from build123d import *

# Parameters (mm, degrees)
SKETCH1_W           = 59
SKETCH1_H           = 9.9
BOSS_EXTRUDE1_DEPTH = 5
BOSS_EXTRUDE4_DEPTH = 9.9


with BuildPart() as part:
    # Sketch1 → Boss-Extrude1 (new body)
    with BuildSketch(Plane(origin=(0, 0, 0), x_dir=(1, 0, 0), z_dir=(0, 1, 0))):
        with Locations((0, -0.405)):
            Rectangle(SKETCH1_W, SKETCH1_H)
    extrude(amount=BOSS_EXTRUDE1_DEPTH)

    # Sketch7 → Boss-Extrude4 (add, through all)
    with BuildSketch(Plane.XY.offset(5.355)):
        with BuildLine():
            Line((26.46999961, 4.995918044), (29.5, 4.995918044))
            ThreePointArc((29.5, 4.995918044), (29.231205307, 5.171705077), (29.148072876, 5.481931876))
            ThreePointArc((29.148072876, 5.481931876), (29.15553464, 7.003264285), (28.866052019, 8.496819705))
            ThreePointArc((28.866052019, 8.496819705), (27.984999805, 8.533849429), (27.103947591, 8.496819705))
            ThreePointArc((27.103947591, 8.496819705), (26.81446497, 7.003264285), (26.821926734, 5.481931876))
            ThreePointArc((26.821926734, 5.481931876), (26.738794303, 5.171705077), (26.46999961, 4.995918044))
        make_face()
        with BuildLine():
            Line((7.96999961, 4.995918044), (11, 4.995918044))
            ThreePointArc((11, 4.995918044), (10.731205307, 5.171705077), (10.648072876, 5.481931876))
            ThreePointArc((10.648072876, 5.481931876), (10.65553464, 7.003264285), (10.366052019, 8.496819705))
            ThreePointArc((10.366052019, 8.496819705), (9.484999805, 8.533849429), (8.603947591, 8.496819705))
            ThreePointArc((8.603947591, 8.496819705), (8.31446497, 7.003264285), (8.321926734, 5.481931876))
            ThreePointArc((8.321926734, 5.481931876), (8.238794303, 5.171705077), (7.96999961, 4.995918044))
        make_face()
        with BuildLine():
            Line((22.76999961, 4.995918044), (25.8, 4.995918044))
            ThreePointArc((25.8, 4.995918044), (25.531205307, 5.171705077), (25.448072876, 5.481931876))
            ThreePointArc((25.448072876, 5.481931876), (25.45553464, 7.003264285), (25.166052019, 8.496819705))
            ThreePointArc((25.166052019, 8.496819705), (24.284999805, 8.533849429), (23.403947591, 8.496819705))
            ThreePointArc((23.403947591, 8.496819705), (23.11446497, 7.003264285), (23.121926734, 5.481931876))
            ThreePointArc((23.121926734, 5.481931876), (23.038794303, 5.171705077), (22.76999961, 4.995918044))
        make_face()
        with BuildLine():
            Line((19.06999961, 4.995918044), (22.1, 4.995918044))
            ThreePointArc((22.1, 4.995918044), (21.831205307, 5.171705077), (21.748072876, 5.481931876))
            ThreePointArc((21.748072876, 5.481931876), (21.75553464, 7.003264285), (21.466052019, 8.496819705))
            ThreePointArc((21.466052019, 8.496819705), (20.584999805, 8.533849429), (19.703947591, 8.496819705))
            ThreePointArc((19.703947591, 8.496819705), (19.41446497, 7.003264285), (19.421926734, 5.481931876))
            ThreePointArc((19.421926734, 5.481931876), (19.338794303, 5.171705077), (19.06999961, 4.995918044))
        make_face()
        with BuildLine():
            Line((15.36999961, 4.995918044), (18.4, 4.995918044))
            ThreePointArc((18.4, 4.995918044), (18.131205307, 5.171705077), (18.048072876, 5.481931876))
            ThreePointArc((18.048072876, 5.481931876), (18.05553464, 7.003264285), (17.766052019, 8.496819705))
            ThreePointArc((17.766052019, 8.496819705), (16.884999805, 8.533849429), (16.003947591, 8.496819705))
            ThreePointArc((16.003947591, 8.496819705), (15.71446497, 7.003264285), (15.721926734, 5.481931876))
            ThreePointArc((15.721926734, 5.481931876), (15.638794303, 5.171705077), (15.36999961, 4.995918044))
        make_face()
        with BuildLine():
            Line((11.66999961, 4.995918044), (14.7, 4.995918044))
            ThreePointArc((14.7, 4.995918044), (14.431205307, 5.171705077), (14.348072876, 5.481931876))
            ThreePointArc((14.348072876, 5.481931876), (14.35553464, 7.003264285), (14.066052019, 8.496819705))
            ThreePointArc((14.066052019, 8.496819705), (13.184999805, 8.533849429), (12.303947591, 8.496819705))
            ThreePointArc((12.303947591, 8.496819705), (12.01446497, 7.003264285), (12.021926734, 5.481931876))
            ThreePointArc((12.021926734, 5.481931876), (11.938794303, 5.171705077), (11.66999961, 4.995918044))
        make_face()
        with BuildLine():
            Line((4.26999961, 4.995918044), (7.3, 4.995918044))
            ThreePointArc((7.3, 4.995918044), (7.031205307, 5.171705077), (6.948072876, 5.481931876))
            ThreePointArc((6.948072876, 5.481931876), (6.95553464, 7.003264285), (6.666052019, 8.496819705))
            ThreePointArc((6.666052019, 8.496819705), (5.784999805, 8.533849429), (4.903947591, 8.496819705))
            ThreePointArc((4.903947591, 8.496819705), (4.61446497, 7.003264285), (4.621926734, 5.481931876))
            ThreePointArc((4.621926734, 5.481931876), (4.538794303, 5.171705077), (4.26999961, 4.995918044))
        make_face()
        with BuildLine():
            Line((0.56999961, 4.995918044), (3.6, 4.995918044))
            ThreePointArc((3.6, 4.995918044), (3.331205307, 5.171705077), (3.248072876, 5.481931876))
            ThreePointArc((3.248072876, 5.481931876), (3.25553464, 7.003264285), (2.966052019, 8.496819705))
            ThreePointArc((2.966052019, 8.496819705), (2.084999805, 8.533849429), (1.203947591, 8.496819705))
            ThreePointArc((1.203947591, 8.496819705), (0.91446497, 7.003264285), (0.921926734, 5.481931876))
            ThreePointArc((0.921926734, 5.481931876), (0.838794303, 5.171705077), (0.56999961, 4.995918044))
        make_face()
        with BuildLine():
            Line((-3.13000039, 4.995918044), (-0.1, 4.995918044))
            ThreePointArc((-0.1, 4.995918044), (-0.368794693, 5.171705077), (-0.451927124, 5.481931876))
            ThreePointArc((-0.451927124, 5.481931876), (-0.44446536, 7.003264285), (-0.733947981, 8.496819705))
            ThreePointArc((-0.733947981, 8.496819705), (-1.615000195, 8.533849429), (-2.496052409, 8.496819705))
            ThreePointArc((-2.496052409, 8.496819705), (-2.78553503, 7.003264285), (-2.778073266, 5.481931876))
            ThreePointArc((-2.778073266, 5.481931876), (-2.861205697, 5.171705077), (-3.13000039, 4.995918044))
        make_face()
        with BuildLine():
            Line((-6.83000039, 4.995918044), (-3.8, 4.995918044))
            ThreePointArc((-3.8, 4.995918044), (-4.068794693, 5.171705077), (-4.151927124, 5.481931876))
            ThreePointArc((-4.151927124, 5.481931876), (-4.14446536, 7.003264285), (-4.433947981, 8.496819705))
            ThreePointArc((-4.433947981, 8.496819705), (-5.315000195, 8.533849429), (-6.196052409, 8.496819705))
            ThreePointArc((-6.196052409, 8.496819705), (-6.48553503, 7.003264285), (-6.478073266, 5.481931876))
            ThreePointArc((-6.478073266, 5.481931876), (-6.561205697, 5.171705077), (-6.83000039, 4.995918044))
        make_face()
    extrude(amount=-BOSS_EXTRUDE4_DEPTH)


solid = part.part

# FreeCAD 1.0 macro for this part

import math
import FreeCAD as App
import Part
import Sketcher
from FreeCAD import Vector
Q = App.Units.Quantity


def add_polygon(sketch, points):
    """Adds a closed chain of lines whose ends are joined by coincident constraints."""
    first, n = sketch.GeometryCount, len(points)
    for a, b in zip(points, points[1:] + points[:1]):
        sketch.addGeometry(Part.LineSegment(App.Vector(*a, 0), App.Vector(*b, 0)), False)
    for i in range(n):
        sketch.addConstraint(Sketcher.Constraint("Coincident", first + i, 2, first + (i + 1) % n, 1))

doc = App.newDocument("Part")
body = doc.addObject("PartDesign::Body", "Body")

sketch1 = doc.addObject("Sketcher::SketchObject", "Sketch")
body.addObject(sketch1)
sketch1.AttachmentSupport = (doc.XZ_Plane, [""])
sketch1.MapMode = "FlatFace"
add_polygon(sketch1, [(-29.5, -4.545), (-29.5, 5.355), (29.5, 5.355), (29.5, -4.545)])
sketch1.addConstraint(Sketcher.Constraint("Vertical", 0))
sketch1.addConstraint(Sketcher.Constraint("Horizontal", 1))
sketch1.addConstraint(Sketcher.Constraint("Vertical", 2))
sketch1.addConstraint(Sketcher.Constraint("Horizontal", 3))
sketch1.addConstraint(Sketcher.Constraint("DistanceX", 1, 1, 1, 2, Q("59 mm")))
sketch1.addConstraint(Sketcher.Constraint("DistanceY", 0, 1, 0, 2, Q("9.9 mm")))
sketch1.addConstraint(Sketcher.Constraint("DistanceX", 0, 2, -1, 1, Q("29.5 mm")))
sketch1.addConstraint(Sketcher.Constraint("DistanceY", -1, 1, 0, 2, Q("5.355 mm")))
pad1 = doc.addObject("PartDesign::Pad", "Pad")
body.addObject(pad1)
pad1.Profile = sketch1
pad1.Length = 5
pad1.Reversed = True

sketch2 = doc.addObject("Sketcher::SketchObject", "Sketch001")
body.addObject(sketch2)
sketch2.AttachmentSupport = (doc.XY_Plane, [""])
sketch2.MapMode = "FlatFace"
sketch2.AttachmentOffset = App.Placement(Vector(0, 0, 5.355), App.Rotation())
sketch2.addGeometry(Part.LineSegment(Vector(26.47, 4.995918, 0), Vector(29.5, 4.995918, 0)), False)
sketch2.addGeometry(Part.ArcOfCircle(Part.Circle(Vector(29.595684, 5.435628, 0), Vector(0, 0, 1), 0.45), math.radians(174.093908), math.radians(257.723384)), False)
sketch2.addGeometry(Part.ArcOfCircle(Part.Circle(Vector(21.42873, 6.280478, 0), Vector(0, 0, 1), 7.760536), math.radians(-5.906092), math.radians(16.594198)), False)
sketch2.addGeometry(Part.ArcOfCircle(Part.Circle(Vector(27.985, -1.966151, 0), Vector(0, 0, 1), 10.5), math.radians(85.186667), math.radians(94.813333)), False)
sketch2.addGeometry(Part.ArcOfCircle(Part.Circle(Vector(34.541269, 6.280478, 0), Vector(0, 0, 1), 7.760536), math.radians(163.405802), math.radians(185.906092)), False)
sketch2.addGeometry(Part.ArcOfCircle(Part.Circle(Vector(26.374315, 5.435628, 0), Vector(0, 0, 1), 0.45), math.radians(-77.723384), math.radians(5.906092)), False)
sketch2.addGeometry(Part.LineSegment(Vector(7.97, 4.995918, 0), Vector(11, 4.995918, 0)), False)
sketch2.addGeometry(Part.ArcOfCircle(Part.Circle(Vector(11.095684, 5.435628, 0), Vector(0, 0, 1), 0.45), math.radians(174.093908), math.radians(257.723384)), False)
sketch2.addGeometry(Part.ArcOfCircle(Part.Circle(Vector(2.92873, 6.280478, 0), Vector(0, 0, 1), 7.760536), math.radians(-5.906092), math.radians(16.594198)), False)
sketch2.addGeometry(Part.ArcOfCircle(Part.Circle(Vector(9.485, -1.966151, 0), Vector(0, 0, 1), 10.5), math.radians(85.186667), math.radians(94.813333)), False)
sketch2.addGeometry(Part.ArcOfCircle(Part.Circle(Vector(16.041269, 6.280478, 0), Vector(0, 0, 1), 7.760536), math.radians(163.405802), math.radians(185.906092)), False)
sketch2.addGeometry(Part.ArcOfCircle(Part.Circle(Vector(7.874315, 5.435628, 0), Vector(0, 0, 1), 0.45), math.radians(-77.723384), math.radians(5.906092)), False)
sketch2.addGeometry(Part.LineSegment(Vector(22.77, 4.995918, 0), Vector(25.8, 4.995918, 0)), False)
sketch2.addGeometry(Part.ArcOfCircle(Part.Circle(Vector(25.895684, 5.435628, 0), Vector(0, 0, 1), 0.45), math.radians(174.093908), math.radians(257.723384)), False)
sketch2.addGeometry(Part.ArcOfCircle(Part.Circle(Vector(17.72873, 6.280478, 0), Vector(0, 0, 1), 7.760536), math.radians(-5.906092), math.radians(16.594198)), False)
sketch2.addGeometry(Part.ArcOfCircle(Part.Circle(Vector(24.285, -1.966151, 0), Vector(0, 0, 1), 10.5), math.radians(85.186667), math.radians(94.813333)), False)
sketch2.addGeometry(Part.ArcOfCircle(Part.Circle(Vector(30.841269, 6.280478, 0), Vector(0, 0, 1), 7.760536), math.radians(163.405802), math.radians(185.906092)), False)
sketch2.addGeometry(Part.ArcOfCircle(Part.Circle(Vector(22.674315, 5.435628, 0), Vector(0, 0, 1), 0.45), math.radians(-77.723384), math.radians(5.906092)), False)
sketch2.addGeometry(Part.LineSegment(Vector(19.07, 4.995918, 0), Vector(22.1, 4.995918, 0)), False)
sketch2.addGeometry(Part.ArcOfCircle(Part.Circle(Vector(22.195684, 5.435628, 0), Vector(0, 0, 1), 0.45), math.radians(174.093908), math.radians(257.723384)), False)
sketch2.addGeometry(Part.ArcOfCircle(Part.Circle(Vector(14.02873, 6.280478, 0), Vector(0, 0, 1), 7.760536), math.radians(-5.906092), math.radians(16.594198)), False)
sketch2.addGeometry(Part.ArcOfCircle(Part.Circle(Vector(20.585, -1.966151, 0), Vector(0, 0, 1), 10.5), math.radians(85.186667), math.radians(94.813333)), False)
sketch2.addGeometry(Part.ArcOfCircle(Part.Circle(Vector(27.141269, 6.280478, 0), Vector(0, 0, 1), 7.760536), math.radians(163.405802), math.radians(185.906092)), False)
sketch2.addGeometry(Part.ArcOfCircle(Part.Circle(Vector(18.974315, 5.435628, 0), Vector(0, 0, 1), 0.45), math.radians(-77.723384), math.radians(5.906092)), False)
sketch2.addGeometry(Part.LineSegment(Vector(15.37, 4.995918, 0), Vector(18.4, 4.995918, 0)), False)
sketch2.addGeometry(Part.ArcOfCircle(Part.Circle(Vector(18.495684, 5.435628, 0), Vector(0, 0, 1), 0.45), math.radians(174.093908), math.radians(257.723384)), False)
sketch2.addGeometry(Part.ArcOfCircle(Part.Circle(Vector(10.32873, 6.280478, 0), Vector(0, 0, 1), 7.760536), math.radians(-5.906092), math.radians(16.594198)), False)
sketch2.addGeometry(Part.ArcOfCircle(Part.Circle(Vector(16.885, -1.966151, 0), Vector(0, 0, 1), 10.5), math.radians(85.186667), math.radians(94.813333)), False)
sketch2.addGeometry(Part.ArcOfCircle(Part.Circle(Vector(23.441269, 6.280478, 0), Vector(0, 0, 1), 7.760536), math.radians(163.405802), math.radians(185.906092)), False)
sketch2.addGeometry(Part.ArcOfCircle(Part.Circle(Vector(15.274315, 5.435628, 0), Vector(0, 0, 1), 0.45), math.radians(-77.723384), math.radians(5.906092)), False)
sketch2.addGeometry(Part.LineSegment(Vector(11.67, 4.995918, 0), Vector(14.7, 4.995918, 0)), False)
sketch2.addGeometry(Part.ArcOfCircle(Part.Circle(Vector(14.795684, 5.435628, 0), Vector(0, 0, 1), 0.45), math.radians(174.093908), math.radians(257.723384)), False)
sketch2.addGeometry(Part.ArcOfCircle(Part.Circle(Vector(6.62873, 6.280478, 0), Vector(0, 0, 1), 7.760536), math.radians(-5.906092), math.radians(16.594198)), False)
sketch2.addGeometry(Part.ArcOfCircle(Part.Circle(Vector(13.185, -1.966151, 0), Vector(0, 0, 1), 10.5), math.radians(85.186667), math.radians(94.813333)), False)
sketch2.addGeometry(Part.ArcOfCircle(Part.Circle(Vector(19.741269, 6.280478, 0), Vector(0, 0, 1), 7.760536), math.radians(163.405802), math.radians(185.906092)), False)
sketch2.addGeometry(Part.ArcOfCircle(Part.Circle(Vector(11.574315, 5.435628, 0), Vector(0, 0, 1), 0.45), math.radians(-77.723384), math.radians(5.906092)), False)
sketch2.addGeometry(Part.LineSegment(Vector(4.27, 4.995918, 0), Vector(7.3, 4.995918, 0)), False)
sketch2.addGeometry(Part.ArcOfCircle(Part.Circle(Vector(7.395684, 5.435628, 0), Vector(0, 0, 1), 0.45), math.radians(174.093908), math.radians(257.723384)), False)
sketch2.addGeometry(Part.ArcOfCircle(Part.Circle(Vector(-0.77127, 6.280478, 0), Vector(0, 0, 1), 7.760536), math.radians(-5.906092), math.radians(16.594198)), False)
sketch2.addGeometry(Part.ArcOfCircle(Part.Circle(Vector(5.785, -1.966151, 0), Vector(0, 0, 1), 10.5), math.radians(85.186667), math.radians(94.813333)), False)
sketch2.addGeometry(Part.ArcOfCircle(Part.Circle(Vector(12.341269, 6.280478, 0), Vector(0, 0, 1), 7.760536), math.radians(163.405802), math.radians(185.906092)), False)
sketch2.addGeometry(Part.ArcOfCircle(Part.Circle(Vector(4.174315, 5.435628, 0), Vector(0, 0, 1), 0.45), math.radians(-77.723384), math.radians(5.906092)), False)
sketch2.addGeometry(Part.LineSegment(Vector(0.57, 4.995918, 0), Vector(3.6, 4.995918, 0)), False)
sketch2.addGeometry(Part.ArcOfCircle(Part.Circle(Vector(3.695684, 5.435628, 0), Vector(0, 0, 1), 0.45), math.radians(174.093908), math.radians(257.723384)), False)
sketch2.addGeometry(Part.ArcOfCircle(Part.Circle(Vector(-4.47127, 6.280478, 0), Vector(0, 0, 1), 7.760536), math.radians(-5.906092), math.radians(16.594198)), False)
sketch2.addGeometry(Part.ArcOfCircle(Part.Circle(Vector(2.085, -1.966151, 0), Vector(0, 0, 1), 10.5), math.radians(85.186667), math.radians(94.813333)), False)
sketch2.addGeometry(Part.ArcOfCircle(Part.Circle(Vector(8.641269, 6.280478, 0), Vector(0, 0, 1), 7.760536), math.radians(163.405802), math.radians(185.906092)), False)
sketch2.addGeometry(Part.ArcOfCircle(Part.Circle(Vector(0.474315, 5.435628, 0), Vector(0, 0, 1), 0.45), math.radians(-77.723384), math.radians(5.906092)), False)
sketch2.addGeometry(Part.LineSegment(Vector(-3.13, 4.995918, 0), Vector(-0.1, 4.995918, 0)), False)
sketch2.addGeometry(Part.ArcOfCircle(Part.Circle(Vector(-0.004316, 5.435628, 0), Vector(0, 0, 1), 0.45), math.radians(174.093908), math.radians(257.723384)), False)
sketch2.addGeometry(Part.ArcOfCircle(Part.Circle(Vector(-8.17127, 6.280478, 0), Vector(0, 0, 1), 7.760536), math.radians(-5.906092), math.radians(16.594198)), False)
sketch2.addGeometry(Part.ArcOfCircle(Part.Circle(Vector(-1.615, -1.966151, 0), Vector(0, 0, 1), 10.5), math.radians(85.186667), math.radians(94.813333)), False)
sketch2.addGeometry(Part.ArcOfCircle(Part.Circle(Vector(4.941269, 6.280478, 0), Vector(0, 0, 1), 7.760536), math.radians(163.405802), math.radians(185.906092)), False)
sketch2.addGeometry(Part.ArcOfCircle(Part.Circle(Vector(-3.225685, 5.435628, 0), Vector(0, 0, 1), 0.45), math.radians(-77.723384), math.radians(5.906092)), False)
sketch2.addGeometry(Part.LineSegment(Vector(-6.83, 4.995918, 0), Vector(-3.8, 4.995918, 0)), False)
sketch2.addGeometry(Part.ArcOfCircle(Part.Circle(Vector(-3.704316, 5.435628, 0), Vector(0, 0, 1), 0.45), math.radians(174.093908), math.radians(257.723384)), False)
sketch2.addGeometry(Part.ArcOfCircle(Part.Circle(Vector(-11.87127, 6.280478, 0), Vector(0, 0, 1), 7.760536), math.radians(-5.906092), math.radians(16.594198)), False)
sketch2.addGeometry(Part.ArcOfCircle(Part.Circle(Vector(-5.315, -1.966151, 0), Vector(0, 0, 1), 10.5), math.radians(85.186667), math.radians(94.813333)), False)
sketch2.addGeometry(Part.ArcOfCircle(Part.Circle(Vector(1.241269, 6.280478, 0), Vector(0, 0, 1), 7.760536), math.radians(163.405802), math.radians(185.906092)), False)
sketch2.addGeometry(Part.ArcOfCircle(Part.Circle(Vector(-6.925685, 5.435628, 0), Vector(0, 0, 1), 0.45), math.radians(-77.723384), math.radians(5.906092)), False)
sketch2.addConstraint(Sketcher.Constraint("Coincident", 0, 2, 1, 2))
sketch2.addConstraint(Sketcher.Constraint("Tangent", 1, 1, 2, 1))
sketch2.addConstraint(Sketcher.Constraint("Coincident", 2, 2, 3, 1))
sketch2.addConstraint(Sketcher.Constraint("Coincident", 3, 2, 4, 1))
sketch2.addConstraint(Sketcher.Constraint("Tangent", 4, 2, 5, 2))
sketch2.addConstraint(Sketcher.Constraint("Coincident", 5, 1, 0, 1))
sketch2.addConstraint(Sketcher.Constraint("Coincident", 6, 2, 7, 2))
sketch2.addConstraint(Sketcher.Constraint("Tangent", 7, 1, 8, 1))
sketch2.addConstraint(Sketcher.Constraint("Coincident", 8, 2, 9, 1))
sketch2.addConstraint(Sketcher.Constraint("Coincident", 9, 2, 10, 1))
sketch2.addConstraint(Sketcher.Constraint("Tangent", 10, 2, 11, 2))
sketch2.addConstraint(Sketcher.Constraint("Coincident", 11, 1, 6, 1))
sketch2.addConstraint(Sketcher.Constraint("Coincident", 12, 2, 13, 2))
sketch2.addConstraint(Sketcher.Constraint("Tangent", 13, 1, 14, 1))
sketch2.addConstraint(Sketcher.Constraint("Coincident", 14, 2, 15, 1))
sketch2.addConstraint(Sketcher.Constraint("Coincident", 15, 2, 16, 1))
sketch2.addConstraint(Sketcher.Constraint("Tangent", 16, 2, 17, 2))
sketch2.addConstraint(Sketcher.Constraint("Coincident", 17, 1, 12, 1))
sketch2.addConstraint(Sketcher.Constraint("Coincident", 18, 2, 19, 2))
sketch2.addConstraint(Sketcher.Constraint("Tangent", 19, 1, 20, 1))
sketch2.addConstraint(Sketcher.Constraint("Coincident", 20, 2, 21, 1))
sketch2.addConstraint(Sketcher.Constraint("Coincident", 21, 2, 22, 1))
sketch2.addConstraint(Sketcher.Constraint("Tangent", 22, 2, 23, 2))
sketch2.addConstraint(Sketcher.Constraint("Coincident", 23, 1, 18, 1))
sketch2.addConstraint(Sketcher.Constraint("Coincident", 24, 2, 25, 2))
sketch2.addConstraint(Sketcher.Constraint("Tangent", 25, 1, 26, 1))
sketch2.addConstraint(Sketcher.Constraint("Coincident", 26, 2, 27, 1))
sketch2.addConstraint(Sketcher.Constraint("Coincident", 27, 2, 28, 1))
sketch2.addConstraint(Sketcher.Constraint("Tangent", 28, 2, 29, 2))
sketch2.addConstraint(Sketcher.Constraint("Coincident", 29, 1, 24, 1))
sketch2.addConstraint(Sketcher.Constraint("Coincident", 30, 2, 31, 2))
sketch2.addConstraint(Sketcher.Constraint("Tangent", 31, 1, 32, 1))
sketch2.addConstraint(Sketcher.Constraint("Coincident", 32, 2, 33, 1))
sketch2.addConstraint(Sketcher.Constraint("Coincident", 33, 2, 34, 1))
sketch2.addConstraint(Sketcher.Constraint("Tangent", 34, 2, 35, 2))
sketch2.addConstraint(Sketcher.Constraint("Coincident", 35, 1, 30, 1))
sketch2.addConstraint(Sketcher.Constraint("Coincident", 36, 2, 37, 2))
sketch2.addConstraint(Sketcher.Constraint("Tangent", 37, 1, 38, 1))
sketch2.addConstraint(Sketcher.Constraint("Coincident", 38, 2, 39, 1))
sketch2.addConstraint(Sketcher.Constraint("Coincident", 39, 2, 40, 1))
sketch2.addConstraint(Sketcher.Constraint("Tangent", 40, 2, 41, 2))
sketch2.addConstraint(Sketcher.Constraint("Coincident", 41, 1, 36, 1))
sketch2.addConstraint(Sketcher.Constraint("Coincident", 42, 2, 43, 2))
sketch2.addConstraint(Sketcher.Constraint("Tangent", 43, 1, 44, 1))
sketch2.addConstraint(Sketcher.Constraint("Coincident", 44, 2, 45, 1))
sketch2.addConstraint(Sketcher.Constraint("Coincident", 45, 2, 46, 1))
sketch2.addConstraint(Sketcher.Constraint("Tangent", 46, 2, 47, 2))
sketch2.addConstraint(Sketcher.Constraint("Coincident", 47, 1, 42, 1))
sketch2.addConstraint(Sketcher.Constraint("Coincident", 48, 2, 49, 2))
sketch2.addConstraint(Sketcher.Constraint("Tangent", 49, 1, 50, 1))
sketch2.addConstraint(Sketcher.Constraint("Coincident", 50, 2, 51, 1))
sketch2.addConstraint(Sketcher.Constraint("Coincident", 51, 2, 52, 1))
sketch2.addConstraint(Sketcher.Constraint("Tangent", 52, 2, 53, 2))
sketch2.addConstraint(Sketcher.Constraint("Coincident", 53, 1, 48, 1))
sketch2.addConstraint(Sketcher.Constraint("Coincident", 54, 2, 55, 2))
sketch2.addConstraint(Sketcher.Constraint("Tangent", 55, 1, 56, 1))
sketch2.addConstraint(Sketcher.Constraint("Coincident", 56, 2, 57, 1))
sketch2.addConstraint(Sketcher.Constraint("Coincident", 57, 2, 58, 1))
sketch2.addConstraint(Sketcher.Constraint("Tangent", 58, 2, 59, 2))
sketch2.addConstraint(Sketcher.Constraint("Coincident", 59, 1, 54, 1))
sketch2.addConstraint(Sketcher.Constraint("Horizontal", 0))
sketch2.addConstraint(Sketcher.Constraint("Horizontal", 6))
sketch2.addConstraint(Sketcher.Constraint("Horizontal", 12))
sketch2.addConstraint(Sketcher.Constraint("Horizontal", 18))
sketch2.addConstraint(Sketcher.Constraint("Horizontal", 24))
sketch2.addConstraint(Sketcher.Constraint("Horizontal", 30))
sketch2.addConstraint(Sketcher.Constraint("Horizontal", 36))
sketch2.addConstraint(Sketcher.Constraint("Horizontal", 42))
sketch2.addConstraint(Sketcher.Constraint("Horizontal", 48))
sketch2.addConstraint(Sketcher.Constraint("Horizontal", 54))
sketch2.addConstraint(Sketcher.Constraint("Equal", 2, 4))
sketch2.addConstraint(Sketcher.Constraint("Equal", 1, 5))
sketch2.addConstraint(Sketcher.Constraint("Equal", 5, 7))
sketch2.addConstraint(Sketcher.Constraint("Equal", 4, 8))
sketch2.addConstraint(Sketcher.Constraint("Equal", 3, 9))
sketch2.addConstraint(Sketcher.Constraint("Equal", 8, 10))
sketch2.addConstraint(Sketcher.Constraint("Equal", 7, 11))
sketch2.addConstraint(Sketcher.Constraint("Equal", 11, 13))
sketch2.addConstraint(Sketcher.Constraint("Equal", 10, 14))
sketch2.addConstraint(Sketcher.Constraint("Equal", 9, 15))
sketch2.addConstraint(Sketcher.Constraint("Equal", 14, 16))
sketch2.addConstraint(Sketcher.Constraint("Equal", 13, 17))
sketch2.addConstraint(Sketcher.Constraint("Equal", 17, 19))
sketch2.addConstraint(Sketcher.Constraint("Equal", 16, 20))
sketch2.addConstraint(Sketcher.Constraint("Equal", 15, 21))
sketch2.addConstraint(Sketcher.Constraint("Equal", 20, 22))
sketch2.addConstraint(Sketcher.Constraint("Equal", 19, 23))
sketch2.addConstraint(Sketcher.Constraint("Equal", 23, 25))
sketch2.addConstraint(Sketcher.Constraint("Equal", 22, 26))
sketch2.addConstraint(Sketcher.Constraint("Equal", 21, 27))
sketch2.addConstraint(Sketcher.Constraint("Equal", 26, 28))
sketch2.addConstraint(Sketcher.Constraint("Equal", 25, 29))
sketch2.addConstraint(Sketcher.Constraint("Equal", 29, 31))
sketch2.addConstraint(Sketcher.Constraint("Equal", 28, 32))
sketch2.addConstraint(Sketcher.Constraint("Equal", 27, 33))
sketch2.addConstraint(Sketcher.Constraint("Equal", 32, 34))
sketch2.addConstraint(Sketcher.Constraint("Equal", 31, 35))
sketch2.addConstraint(Sketcher.Constraint("Equal", 35, 37))
sketch2.addConstraint(Sketcher.Constraint("Equal", 34, 38))
sketch2.addConstraint(Sketcher.Constraint("Equal", 33, 39))
sketch2.addConstraint(Sketcher.Constraint("Equal", 38, 40))
sketch2.addConstraint(Sketcher.Constraint("Equal", 37, 41))
sketch2.addConstraint(Sketcher.Constraint("Equal", 41, 43))
sketch2.addConstraint(Sketcher.Constraint("Equal", 40, 44))
sketch2.addConstraint(Sketcher.Constraint("Equal", 39, 45))
sketch2.addConstraint(Sketcher.Constraint("Equal", 44, 46))
sketch2.addConstraint(Sketcher.Constraint("Equal", 43, 47))
sketch2.addConstraint(Sketcher.Constraint("Equal", 47, 49))
sketch2.addConstraint(Sketcher.Constraint("Equal", 46, 50))
sketch2.addConstraint(Sketcher.Constraint("Equal", 45, 51))
sketch2.addConstraint(Sketcher.Constraint("Equal", 50, 52))
sketch2.addConstraint(Sketcher.Constraint("Equal", 49, 53))
sketch2.addConstraint(Sketcher.Constraint("Equal", 53, 55))
sketch2.addConstraint(Sketcher.Constraint("Equal", 52, 56))
sketch2.addConstraint(Sketcher.Constraint("Equal", 51, 57))
sketch2.addConstraint(Sketcher.Constraint("Equal", 56, 58))
sketch2.addConstraint(Sketcher.Constraint("Equal", 55, 59))
sketch2.addConstraint(Sketcher.Constraint("Horizontal", 2, 3, 4, 3))
sketch2.addConstraint(Sketcher.Constraint("Horizontal", 1, 3, 5, 3))
sketch2.addConstraint(Sketcher.Constraint("Horizontal", 5, 3, 7, 3))
sketch2.addConstraint(Sketcher.Constraint("Horizontal", 4, 3, 8, 3))
sketch2.addConstraint(Sketcher.Constraint("Horizontal", 3, 3, 9, 3))
sketch2.addConstraint(Sketcher.Constraint("Horizontal", 8, 3, 10, 3))
sketch2.addConstraint(Sketcher.Constraint("Horizontal", 7, 3, 11, 3))
sketch2.addConstraint(Sketcher.Constraint("Horizontal", 11, 3, 13, 3))
sketch2.addConstraint(Sketcher.Constraint("Horizontal", 10, 3, 14, 3))
sketch2.addConstraint(Sketcher.Constraint("Horizontal", 9, 3, 15, 3))
sketch2.addConstraint(Sketcher.Constraint("Horizontal", 14, 3, 16, 3))
sketch2.addConstraint(Sketcher.Constraint("Horizontal", 13, 3, 17, 3))
sketch2.addConstraint(Sketcher.Constraint("Horizontal", 17, 3, 19, 3))
sketch2.addConstraint(Sketcher.Constraint("Horizontal", 16, 3, 20, 3))
sketch2.addConstraint(Sketcher.Constraint("Horizontal", 15, 3, 21, 3))
sketch2.addConstraint(Sketcher.Constraint("Horizontal", 20, 3, 22, 3))
sketch2.addConstraint(Sketcher.Constraint("Horizontal", 19, 3, 23, 3))
sketch2.addConstraint(Sketcher.Constraint("Horizontal", 23, 3, 25, 3))
sketch2.addConstraint(Sketcher.Constraint("Horizontal", 22, 3, 26, 3))
sketch2.addConstraint(Sketcher.Constraint("Horizontal", 21, 3, 27, 3))
sketch2.addConstraint(Sketcher.Constraint("Horizontal", 26, 3, 28, 3))
sketch2.addConstraint(Sketcher.Constraint("Horizontal", 25, 3, 29, 3))
sketch2.addConstraint(Sketcher.Constraint("Horizontal", 29, 3, 31, 3))
sketch2.addConstraint(Sketcher.Constraint("Horizontal", 28, 3, 32, 3))
sketch2.addConstraint(Sketcher.Constraint("Horizontal", 27, 3, 33, 3))
sketch2.addConstraint(Sketcher.Constraint("Horizontal", 32, 3, 34, 3))
sketch2.addConstraint(Sketcher.Constraint("Horizontal", 31, 3, 35, 3))
sketch2.addConstraint(Sketcher.Constraint("Horizontal", 35, 3, 37, 3))
sketch2.addConstraint(Sketcher.Constraint("Horizontal", 34, 3, 38, 3))
sketch2.addConstraint(Sketcher.Constraint("Horizontal", 33, 3, 39, 3))
sketch2.addConstraint(Sketcher.Constraint("Horizontal", 38, 3, 40, 3))
sketch2.addConstraint(Sketcher.Constraint("Horizontal", 37, 3, 41, 3))
sketch2.addConstraint(Sketcher.Constraint("Horizontal", 41, 3, 43, 3))
sketch2.addConstraint(Sketcher.Constraint("Horizontal", 40, 3, 44, 3))
sketch2.addConstraint(Sketcher.Constraint("Horizontal", 39, 3, 45, 3))
sketch2.addConstraint(Sketcher.Constraint("Horizontal", 44, 3, 46, 3))
sketch2.addConstraint(Sketcher.Constraint("Horizontal", 43, 3, 47, 3))
sketch2.addConstraint(Sketcher.Constraint("Horizontal", 47, 3, 49, 3))
sketch2.addConstraint(Sketcher.Constraint("Horizontal", 46, 3, 50, 3))
sketch2.addConstraint(Sketcher.Constraint("Horizontal", 45, 3, 51, 3))
sketch2.addConstraint(Sketcher.Constraint("Horizontal", 50, 3, 52, 3))
sketch2.addConstraint(Sketcher.Constraint("Horizontal", 49, 3, 53, 3))
sketch2.addConstraint(Sketcher.Constraint("Horizontal", 53, 3, 55, 3))
sketch2.addConstraint(Sketcher.Constraint("Horizontal", 52, 3, 56, 3))
sketch2.addConstraint(Sketcher.Constraint("Horizontal", 51, 3, 57, 3))
sketch2.addConstraint(Sketcher.Constraint("Horizontal", 56, 3, 58, 3))
sketch2.addConstraint(Sketcher.Constraint("Horizontal", 55, 3, 59, 3))
sketch2.addConstraint(Sketcher.Constraint("Horizontal", 2, 2, 3, 2))
sketch2.addConstraint(Sketcher.Constraint("Horizontal", 5, 1, 6, 2))
sketch2.addConstraint(Sketcher.Constraint("Horizontal", 3, 2, 8, 2))
sketch2.addConstraint(Sketcher.Constraint("Horizontal", 8, 2, 9, 2))
sketch2.addConstraint(Sketcher.Constraint("Horizontal", 11, 1, 12, 2))
sketch2.addConstraint(Sketcher.Constraint("Horizontal", 9, 2, 14, 2))
sketch2.addConstraint(Sketcher.Constraint("Horizontal", 14, 2, 15, 2))
sketch2.addConstraint(Sketcher.Constraint("Horizontal", 17, 1, 18, 2))
sketch2.addConstraint(Sketcher.Constraint("Horizontal", 15, 2, 20, 2))
sketch2.addConstraint(Sketcher.Constraint("Horizontal", 20, 2, 21, 2))
sketch2.addConstraint(Sketcher.Constraint("Horizontal", 23, 1, 24, 2))
sketch2.addConstraint(Sketcher.Constraint("Horizontal", 21, 2, 26, 2))
sketch2.addConstraint(Sketcher.Constraint("Horizontal", 26, 2, 27, 2))
sketch2.addConstraint(Sketcher.Constraint("Horizontal", 29, 1, 30, 2))
sketch2.addConstraint(Sketcher.Constraint("Horizontal", 27, 2, 32, 2))
sketch2.addConstraint(Sketcher.Constraint("Horizontal", 32, 2, 33, 2))
sketch2.addConstraint(Sketcher.Constraint("Horizontal", 35, 1, 36, 2))
sketch2.addConstraint(Sketcher.Constraint("Horizontal", 33, 2, 38, 2))
sketch2.addConstraint(Sketcher.Constraint("Horizontal", 38, 2, 39, 2))
sketch2.addConstraint(Sketcher.Constraint("Horizontal", 41, 1, 42, 2))
sketch2.addConstraint(Sketcher.Constraint("Horizontal", 39, 2, 44, 2))
sketch2.addConstraint(Sketcher.Constraint("Horizontal", 44, 2, 45, 2))
sketch2.addConstraint(Sketcher.Constraint("Horizontal", 47, 1, 48, 2))
sketch2.addConstraint(Sketcher.Constraint("Horizontal", 45, 2, 50, 2))
sketch2.addConstraint(Sketcher.Constraint("Horizontal", 50, 2, 51, 2))
sketch2.addConstraint(Sketcher.Constraint("Horizontal", 53, 1, 54, 2))
sketch2.addConstraint(Sketcher.Constraint("Horizontal", 51, 2, 56, 2))
sketch2.addConstraint(Sketcher.Constraint("Horizontal", 56, 2, 57, 2))
sketch2.addConstraint(Sketcher.Constraint("Radius", 3, Q("10.5 mm")))
sketch2.addConstraint(Sketcher.Constraint("Radius", 1, Q("0.45 mm")))
sketch2.addConstraint(Sketcher.Constraint("DistanceX", -1, 1, 6, 2, Q("11 mm")))
sketch2.addConstraint(Sketcher.Constraint("DistanceX", 0, 1, 0, 2, Q("3.03 mm")))
sketch2.addConstraint(Sketcher.Constraint("DistanceX", -1, 1, 0, 2, Q("29.5 mm")))
sketch2.addConstraint(Sketcher.Constraint("DistanceX", -1, 1, 12, 2, Q("25.8 mm")))
sketch2.addConstraint(Sketcher.Constraint("DistanceX", -1, 1, 18, 2, Q("22.1 mm")))
sketch2.addConstraint(Sketcher.Constraint("DistanceX", -1, 1, 24, 2, Q("18.4 mm")))
sketch2.addConstraint(Sketcher.Constraint("DistanceX", -1, 1, 30, 2, Q("14.7 mm")))
sketch2.addConstraint(Sketcher.Constraint("DistanceX", -1, 1, 36, 2, Q("7.3 mm")))
sketch2.addConstraint(Sketcher.Constraint("DistanceX", -1, 1, 42, 2, Q("3.6 mm")))
sketch2.addConstraint(Sketcher.Constraint("DistanceX", 48, 2, -1, 1, Q("0.1 mm")))
sketch2.addConstraint(Sketcher.Constraint("DistanceX", 54, 2, -1, 1, Q("3.8 mm")))
sketch2.addConstraint(Sketcher.Constraint("Radius", 2, Q("7.760536 mm")))
sketch2.addConstraint(Sketcher.Constraint("DistanceX", -1, 1, 2, 3, Q("21.42873 mm")))
sketch2.addConstraint(Sketcher.Constraint("DistanceY", 3, 3, -1, 1, Q("1.966151 mm")))
sketch2.addConstraint(Sketcher.Constraint("DistanceY", -1, 1, 0, 2, Q("4.995918 mm")))
sketch2.addConstraint(Sketcher.Constraint("DistanceY", -1, 1, 1, 1, Q("5.481932 mm")))
pad2 = doc.addObject("PartDesign::Pad", "Pad001")
body.addObject(pad2)
pad2.Profile = sketch2
pad2.Length = 9.9
pad2.Reversed = True

doc.recompute()
